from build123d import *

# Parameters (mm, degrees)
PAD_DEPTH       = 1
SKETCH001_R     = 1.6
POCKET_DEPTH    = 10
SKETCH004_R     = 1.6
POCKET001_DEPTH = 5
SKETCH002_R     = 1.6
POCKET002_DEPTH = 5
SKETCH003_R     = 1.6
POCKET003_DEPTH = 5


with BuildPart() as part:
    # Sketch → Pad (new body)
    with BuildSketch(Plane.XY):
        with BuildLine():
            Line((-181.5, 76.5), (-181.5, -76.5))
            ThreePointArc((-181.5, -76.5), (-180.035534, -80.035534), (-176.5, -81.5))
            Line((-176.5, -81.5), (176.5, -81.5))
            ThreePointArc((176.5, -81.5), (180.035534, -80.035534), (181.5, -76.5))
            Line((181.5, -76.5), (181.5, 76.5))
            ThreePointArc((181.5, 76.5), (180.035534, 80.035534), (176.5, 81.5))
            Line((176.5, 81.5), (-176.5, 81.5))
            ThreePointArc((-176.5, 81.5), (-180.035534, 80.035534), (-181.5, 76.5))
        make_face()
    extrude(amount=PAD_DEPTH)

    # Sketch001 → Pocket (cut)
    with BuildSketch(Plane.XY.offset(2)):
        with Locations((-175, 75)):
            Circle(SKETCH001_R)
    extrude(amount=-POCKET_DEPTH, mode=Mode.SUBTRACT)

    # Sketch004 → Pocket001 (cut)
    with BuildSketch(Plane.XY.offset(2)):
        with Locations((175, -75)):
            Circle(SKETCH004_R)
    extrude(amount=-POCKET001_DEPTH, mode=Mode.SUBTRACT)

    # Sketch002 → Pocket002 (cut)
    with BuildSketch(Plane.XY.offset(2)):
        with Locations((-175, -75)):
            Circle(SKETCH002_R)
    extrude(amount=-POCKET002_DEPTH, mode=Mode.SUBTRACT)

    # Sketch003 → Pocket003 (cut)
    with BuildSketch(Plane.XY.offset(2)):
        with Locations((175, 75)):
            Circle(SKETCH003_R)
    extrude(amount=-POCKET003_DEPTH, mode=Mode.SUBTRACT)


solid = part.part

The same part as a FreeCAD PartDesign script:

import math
import FreeCAD as App
import Part
import Sketcher

doc = App.newDocument("Part")
body = doc.addObject("PartDesign::Body", "Body")

sketch1 = body.newObject("Sketcher::SketchObject", "Sketch")
sketch1.AttachmentSupport = (doc.getObject("XY_Plane"), [""])
sketch1.MapMode = "FlatFace"
sketch1.addGeometry(Part.LineSegment(App.Vector(-181.5, 76.5, 0), App.Vector(-181.5, -76.5, 0)), False)
sketch1.addGeometry(Part.ArcOfCircle(Part.Circle(App.Vector(-176.5, -76.5, 0), App.Vector(0, 0, 1), 5), math.radians(179.999996), math.radians(270.000004)), False)
sketch1.addGeometry(Part.LineSegment(App.Vector(-176.5, -81.5, 0), App.Vector(176.5, -81.5, 0)), False)
sketch1.addGeometry(Part.ArcOfCircle(Part.Circle(App.Vector(176.5, -76.5, 0), App.Vector(0, 0, 1), 5), math.radians(-90.000004), math.radians(0.000004)), False)
sketch1.addGeometry(Part.LineSegment(App.Vector(181.5, -76.5, 0), App.Vector(181.5, 76.5, 0)), False)
sketch1.addGeometry(Part.ArcOfCircle(Part.Circle(App.Vector(176.5, 76.5, 0), App.Vector(0, 0, 1), 5), math.radians(-0.000004), math.radians(90.000004)), False)
sketch1.addGeometry(Part.LineSegment(App.Vector(176.5, 81.5, 0), App.Vector(-176.5, 81.5, 0)), False)
sketch1.addGeometry(Part.ArcOfCircle(Part.Circle(App.Vector(-176.5, 76.5, 0), App.Vector(0, 0, 1), 5), math.radians(89.999996), math.radians(180.000004)), False)
sketch1.addConstraint(Sketcher.Constraint("Tangent", 0, 2, 1, 1))
sketch1.addConstraint(Sketcher.Constraint("Tangent", 1, 2, 2, 1))
sketch1.addConstraint(Sketcher.Constraint("Tangent", 2, 2, 3, 1))
sketch1.addConstraint(Sketcher.Constraint("Tangent", 3, 2, 4, 1))
sketch1.addConstraint(Sketcher.Constraint("Tangent", 4, 2, 5, 1))
sketch1.addConstraint(Sketcher.Constraint("Tangent", 5, 2, 6, 1))
sketch1.addConstraint(Sketcher.Constraint("Tangent", 6, 2, 7, 1))
sketch1.addConstraint(Sketcher.Constraint("Tangent", 7, 2, 0, 1))
sketch1.addConstraint(Sketcher.Constraint("Vertical", 0))
sketch1.addConstraint(Sketcher.Constraint("Horizontal", 2))
sketch1.addConstraint(Sketcher.Constraint("Vertical", 4))
sketch1.addConstraint(Sketcher.Constraint("Horizontal", 6))
sketch1.addConstraint(Sketcher.Constraint("Equal", 1, 3))
sketch1.addConstraint(Sketcher.Constraint("Equal", 3, 5))
sketch1.addConstraint(Sketcher.Constraint("Equal", 5, 7))
sketch1.addConstraint(Sketcher.Constraint("Symmetric", 1, 3, 5, 3, -1, 1))
sketch1.addConstraint(Sketcher.Constraint("Radius", 1, 5.0))
sketch1.addConstraint(Sketcher.Constraint("DistanceX", 2, 1, 2, 2, 353.0))
sketch1.addConstraint(Sketcher.Constraint("DistanceY", 0, 2, 0, 1, 153.0))
pad1 = body.newObject("PartDesign::Pad", "Pad")
pad1.Profile = sketch1
pad1.Length = 1

sketch2 = body.newObject("Sketcher::SketchObject", "Sketch001")
sketch2.AttachmentSupport = (doc.getObject("XY_Plane"), [""])
sketch2.MapMode = "FlatFace"
sketch2.AttachmentOffset = App.Placement(App.Vector(0, 0, 2), App.Rotation())
sketch2.addGeometry(Part.Circle(App.Vector(-175, 75, 0), App.Vector(0, 0, 1), 1.6), False)
sketch2.addConstraint(Sketcher.Constraint("Diameter", 0, 3.2))
sketch2.addConstraint(Sketcher.Constraint("DistanceX", 0, 3, -1, 1, 175.0))
sketch2.addConstraint(Sketcher.Constraint("DistanceY", -1, 1, 0, 3, 75.0))
pocket1 = body.newObject("PartDesign::Pocket", "Pocket")
pocket1.Profile = sketch2
pocket1.Length = 10

sketch3 = body.newObject("Sketcher::SketchObject", "Sketch002")
sketch3.AttachmentSupport = (doc.getObject("XY_Plane"), [""])
sketch3.MapMode = "FlatFace"
sketch3.AttachmentOffset = App.Placement(App.Vector(0, 0, 2), App.Rotation())
sketch3.addGeometry(Part.Circle(App.Vector(175, -75, 0), App.Vector(0, 0, 1), 1.6), False)
sketch3.addConstraint(Sketcher.Constraint("Diameter", 0, 3.2))
sketch3.addConstraint(Sketcher.Constraint("DistanceX", -1, 1, 0, 3, 175.0))
sketch3.addConstraint(Sketcher.Constraint("DistanceY", 0, 3, -1, 1, 75.0))
pocket2 = body.newObject("PartDesign::Pocket", "Pocket001")
pocket2.Profile = sketch3
pocket2.Length = 5

sketch4 = body.newObject("Sketcher::SketchObject", "Sketch003")
sketch4.AttachmentSupport = (doc.getObject("XY_Plane"), [""])
sketch4.MapMode = "FlatFace"
sketch4.AttachmentOffset = App.Placement(App.Vector(0, 0, 2), App.Rotation())
sketch4.addGeometry(Part.Circle(App.Vector(-175, -75, 0), App.Vector(0, 0, 1), 1.6), False)
sketch4.addConstraint(Sketcher.Constraint("Diameter", 0, 3.2))
sketch4.addConstraint(Sketcher.Constraint("DistanceX", 0, 3, -1, 1, 175.0))
sketch4.addConstraint(Sketcher.Constraint("DistanceY", 0, 3, -1, 1, 75.0))
pocket3 = body.newObject("PartDesign::Pocket", "Pocket002")
pocket3.Profile = sketch4
pocket3.Length = 5

sketch5 = body.newObject("Sketcher::SketchObject", "Sketch004")
sketch5.AttachmentSupport = (doc.getObject("XY_Plane"), [""])
sketch5.MapMode = "FlatFace"
sketch5.AttachmentOffset = App.Placement(App.Vector(0, 0, 2), App.Rotation())
sketch5.addGeometry(Part.Circle(App.Vector(175, 75, 0), App.Vector(0, 0, 1), 1.6), False)
sketch5.addConstraint(Sketcher.Constraint("Diameter", 0, 3.2))
sketch5.addConstraint(Sketcher.Constraint("DistanceX", -1, 1, 0, 3, 175.0))
sketch5.addConstraint(Sketcher.Constraint("DistanceY", -1, 1, 0, 3, 75.0))
pocket4 = body.newObject("PartDesign::Pocket", "Pocket003")
pocket4.Profile = sketch5
pocket4.Length = 5

doc.recompute()
